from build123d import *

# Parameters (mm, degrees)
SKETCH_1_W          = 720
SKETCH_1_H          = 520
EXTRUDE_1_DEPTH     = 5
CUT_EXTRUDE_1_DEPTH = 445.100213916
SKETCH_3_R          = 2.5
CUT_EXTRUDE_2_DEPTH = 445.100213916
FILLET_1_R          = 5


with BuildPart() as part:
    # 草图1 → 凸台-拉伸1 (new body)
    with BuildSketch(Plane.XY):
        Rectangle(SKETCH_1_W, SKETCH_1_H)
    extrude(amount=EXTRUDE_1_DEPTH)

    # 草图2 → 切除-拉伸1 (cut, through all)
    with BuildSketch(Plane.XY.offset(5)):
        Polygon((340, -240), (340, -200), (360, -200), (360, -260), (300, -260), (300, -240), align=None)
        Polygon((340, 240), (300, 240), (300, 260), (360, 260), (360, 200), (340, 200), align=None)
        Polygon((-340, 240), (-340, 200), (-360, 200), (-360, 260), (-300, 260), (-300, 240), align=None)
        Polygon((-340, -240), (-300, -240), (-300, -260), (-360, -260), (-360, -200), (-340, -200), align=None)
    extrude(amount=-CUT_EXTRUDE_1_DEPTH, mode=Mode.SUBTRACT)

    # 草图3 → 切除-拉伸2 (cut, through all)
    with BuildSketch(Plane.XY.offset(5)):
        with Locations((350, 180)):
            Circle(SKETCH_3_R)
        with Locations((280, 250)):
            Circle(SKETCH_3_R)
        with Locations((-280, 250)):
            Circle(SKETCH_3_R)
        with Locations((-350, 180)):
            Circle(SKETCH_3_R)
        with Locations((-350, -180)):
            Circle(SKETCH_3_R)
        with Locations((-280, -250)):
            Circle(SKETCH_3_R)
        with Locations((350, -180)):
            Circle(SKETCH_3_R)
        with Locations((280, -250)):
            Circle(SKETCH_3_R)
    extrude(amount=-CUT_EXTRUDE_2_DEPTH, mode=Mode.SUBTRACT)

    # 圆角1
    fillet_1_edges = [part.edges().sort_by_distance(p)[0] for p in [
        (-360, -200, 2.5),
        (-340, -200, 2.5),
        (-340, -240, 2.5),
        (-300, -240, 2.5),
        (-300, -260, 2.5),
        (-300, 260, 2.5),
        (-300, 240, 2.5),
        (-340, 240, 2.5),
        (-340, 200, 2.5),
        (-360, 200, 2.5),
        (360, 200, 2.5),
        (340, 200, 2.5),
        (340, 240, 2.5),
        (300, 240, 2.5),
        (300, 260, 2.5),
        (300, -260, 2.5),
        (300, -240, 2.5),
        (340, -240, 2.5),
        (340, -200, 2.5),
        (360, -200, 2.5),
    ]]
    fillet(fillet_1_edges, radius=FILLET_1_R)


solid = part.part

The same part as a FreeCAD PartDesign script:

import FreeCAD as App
import Part
import Sketcher
from FreeCAD import Vector


def edges_at(feature, points):
    """Names of the edges that pass closest to the given points."""
    edges = feature.Shape.Edges
    near = lambda p: min(range(len(edges)), key=lambda i: edges[i].distToShape(Part.Vertex(*p))[0])
    return sorted({f"Edge{near(p) + 1}" for p in points})


def add_polygon(sketch, points):
    """Adds a closed chain of lines whose ends are joined by coincident constraints."""
    first, n = sketch.GeometryCount, len(points)
    for a, b in zip(points, points[1:] + points[:1]):
        sketch.addGeometry(Part.LineSegment(App.Vector(*a, 0), App.Vector(*b, 0)), False)
    for i in range(n):
        sketch.addConstraint(Sketcher.Constraint("Coincident", first + i, 2, first + (i + 1) % n, 1))

doc = App.newDocument("Part")
body = doc.addObject("PartDesign::Body", "Body")

# Sketch on XY plane
sketch1 = body.newObject("Sketcher::SketchObject", "Sketch")
sketch1.AttachmentSupport = (doc.getObject("XY_Plane"), [""])
sketch1.MapMode = "FlatFace"
add_polygon(sketch1, [(-360, 260), (-360, -260), (360, -260), (360, 260)])  # lines 0-3
sketch1.addConstraint([
    Sketcher.Constraint("Vertical", 0),
    Sketcher.Constraint("Horizontal", 1),
    Sketcher.Constraint("Vertical", 2),
    Sketcher.Constraint("Horizontal", 3),
    Sketcher.Constraint("Symmetric", 0, 2, 2, 2, -1, 1),
    Sketcher.Constraint("DistanceX", 1, 1, 1, 2, 720.0),
    Sketcher.Constraint("DistanceY", 0, 2, 0, 1, 520.0),
])
pad1 = body.newObject("PartDesign::Pad", "Pad")
pad1.Profile = sketch1
pad1.Length = 5

# Sketch on XY plane
sketch2 = body.newObject("Sketcher::SketchObject", "Sketch001")
sketch2.AttachmentSupport = (doc.getObject("XY_Plane"), [""])
sketch2.MapMode = "FlatFace"
sketch2.AttachmentOffset = App.Placement(Vector(0, 0, 5), App.Rotation())
add_polygon(sketch2, [(340, -200), (340, -240), (300, -240), (300, -260), (360, -260), (360, -200)])  # lines 0-5
add_polygon(sketch2, [(300, 240), (340, 240), (340, 200), (360, 200), (360, 260), (300, 260)])  # lines 6-11
add_polygon(sketch2, [(-340, 200), (-340, 240), (-300, 240), (-300, 260), (-360, 260), (-360, 200)])  # lines 12-17
add_polygon(sketch2, [(-300, -240), (-340, -240), (-340, -200), (-360, -200), (-360, -260), (-300, -260)])  # lines 18-23
sketch2.addConstraint([
    Sketcher.Constraint("Vertical", 0),
    Sketcher.Constraint("Horizontal", 1),
    Sketcher.Constraint("Vertical", 2),
    Sketcher.Constraint("Horizontal", 3),
    Sketcher.Constraint("Vertical", 4),
    Sketcher.Constraint("Horizontal", 5),
    Sketcher.Constraint("Horizontal", 6),
    Sketcher.Constraint("Vertical", 7),
    Sketcher.Constraint("Horizontal", 8),
    Sketcher.Constraint("Vertical", 9),
    Sketcher.Constraint("Horizontal", 10),
    Sketcher.Constraint("Vertical", 11),
    Sketcher.Constraint("Vertical", 12),
    Sketcher.Constraint("Horizontal", 13),
    Sketcher.Constraint("Vertical", 14),
    Sketcher.Constraint("Horizontal", 15),
    Sketcher.Constraint("Vertical", 16),
    Sketcher.Constraint("Horizontal", 17),
    Sketcher.Constraint("Horizontal", 18),
    Sketcher.Constraint("Vertical", 19),
    Sketcher.Constraint("Horizontal", 20),
    Sketcher.Constraint("Vertical", 21),
    Sketcher.Constraint("Horizontal", 22),
    Sketcher.Constraint("Vertical", 23),
    Sketcher.Constraint("Symmetric", 0, 2, 12, 2, -1, 1),
    Sketcher.Constraint("Symmetric", 2, 2, 14, 2, -1, 1),
    Sketcher.Constraint("Symmetric", 4, 2, 16, 2, -1, 1),
    Sketcher.Constraint("Symmetric", 6, 2, 18, 2, -1, 1),
    Sketcher.Constraint("Symmetric", 8, 2, 20, 2, -1, 1),
    Sketcher.Constraint("Symmetric", 10, 2, 22, 2, -1, 1),
    Sketcher.Constraint("Symmetric", 6, 2, 12, 2, -2),
    Sketcher.Constraint("Symmetric", 10, 2, 14, 2, -2),
    Sketcher.Constraint("Symmetric", 8, 2, 16, 2, -2),
    Sketcher.Constraint("Equal", 18, 0),
    Sketcher.Constraint("Equal", 20, 2),
    Sketcher.Constraint("DistanceX", 1, 2, 1, 1, 40.0),
    Sketcher.Constraint("DistanceX", 3, 1, 3, 2, 60.0),
    Sketcher.Constraint("DistanceX", -1, 1, 0, 2, 340.0),
    Sketcher.Constraint("DistanceY", 0, 2, -1, 1, 240.0),
])
pocket1 = body.newObject("PartDesign::Pocket", "Pocket")
pocket1.Profile = sketch2
pocket1.Type = "ThroughAll"

# Sketch on XY plane
sketch3 = body.newObject("Sketcher::SketchObject", "Sketch002")
sketch3.AttachmentSupport = (doc.getObject("XY_Plane"), [""])
sketch3.MapMode = "FlatFace"
sketch3.AttachmentOffset = App.Placement(Vector(0, 0, 5), App.Rotation())
sketch3.addGeometry([
    Part.Circle(Vector(350, 180, 0), Vector(0, 0, 1), 2.5),  # 0
    Part.Circle(Vector(280, 250, 0), Vector(0, 0, 1), 2.5),  # 1
    Part.Circle(Vector(-280, 250, 0), Vector(0, 0, 1), 2.5),  # 2
    Part.Circle(Vector(-350, 180, 0), Vector(0, 0, 1), 2.5),  # 3
    Part.Circle(Vector(-350, -180, 0), Vector(0, 0, 1), 2.5),  # 4
    Part.Circle(Vector(-280, -250, 0), Vector(0, 0, 1), 2.5),  # 5
    Part.Circle(Vector(350, -180, 0), Vector(0, 0, 1), 2.5),  # 6
    Part.Circle(Vector(280, -250, 0), Vector(0, 0, 1), 2.5),  # 7
], False)
sketch3.addConstraint([
    Sketcher.Constraint("Equal", 0, 1),
    Sketcher.Constraint("Equal", 1, 2),
    Sketcher.Constraint("Equal", 2, 3),
    Sketcher.Constraint("Equal", 3, 4),
    Sketcher.Constraint("Equal", 4, 5),
    Sketcher.Constraint("Equal", 5, 6),
    Sketcher.Constraint("Equal", 6, 7),
    Sketcher.Constraint("Symmetric", 0, 3, 4, 3, -1, 1),
    Sketcher.Constraint("Symmetric", 1, 3, 5, 3, -1, 1),
    Sketcher.Constraint("Symmetric", 3, 3, 6, 3, -1, 1),
    Sketcher.Constraint("Symmetric", 2, 3, 7, 3, -1, 1),
    Sketcher.Constraint("Symmetric", 1, 3, 2, 3, -2),
    Sketcher.Constraint("Symmetric", 0, 3, 3, 3, -2),
    Sketcher.Constraint("Diameter", 0, 5.0),
    Sketcher.Constraint("DistanceX", -1, 1, 0, 3, 350.0),
    Sketcher.Constraint("DistanceY", -1, 1, 0, 3, 180.0),
    Sketcher.Constraint("DistanceX", -1, 1, 1, 3, 280.0),
    Sketcher.Constraint("DistanceY", -1, 1, 1, 3, 250.0),
])
pocket2 = body.newObject("PartDesign::Pocket", "Pocket001")
pocket2.Profile = sketch3
pocket2.Type = "ThroughAll"
doc.recompute()

fillet = body.newObject("PartDesign::Fillet", "Fillet")
fillet.Base = (pocket2, edges_at(pocket2, [
    (-360, -200, 2.5),
    (-340, -200, 2.5),
    (-340, -240, 2.5),
    (-300, -240, 2.5),
    (-300, -260, 2.5),
    (-300, 260, 2.5),
    (-300, 240, 2.5),
    (-340, 240, 2.5),
    (-340, 200, 2.5),
    (-360, 200, 2.5),
    (360, 200, 2.5),
    (340, 200, 2.5),
    (340, 240, 2.5),
    (300, 240, 2.5),
    (300, 260, 2.5),
    (300, -260, 2.5),
    (300, -240, 2.5),
    (340, -240, 2.5),
    (340, -200, 2.5),
    (360, -200, 2.5),
]))
fillet.Radius = 5

doc.recompute()
